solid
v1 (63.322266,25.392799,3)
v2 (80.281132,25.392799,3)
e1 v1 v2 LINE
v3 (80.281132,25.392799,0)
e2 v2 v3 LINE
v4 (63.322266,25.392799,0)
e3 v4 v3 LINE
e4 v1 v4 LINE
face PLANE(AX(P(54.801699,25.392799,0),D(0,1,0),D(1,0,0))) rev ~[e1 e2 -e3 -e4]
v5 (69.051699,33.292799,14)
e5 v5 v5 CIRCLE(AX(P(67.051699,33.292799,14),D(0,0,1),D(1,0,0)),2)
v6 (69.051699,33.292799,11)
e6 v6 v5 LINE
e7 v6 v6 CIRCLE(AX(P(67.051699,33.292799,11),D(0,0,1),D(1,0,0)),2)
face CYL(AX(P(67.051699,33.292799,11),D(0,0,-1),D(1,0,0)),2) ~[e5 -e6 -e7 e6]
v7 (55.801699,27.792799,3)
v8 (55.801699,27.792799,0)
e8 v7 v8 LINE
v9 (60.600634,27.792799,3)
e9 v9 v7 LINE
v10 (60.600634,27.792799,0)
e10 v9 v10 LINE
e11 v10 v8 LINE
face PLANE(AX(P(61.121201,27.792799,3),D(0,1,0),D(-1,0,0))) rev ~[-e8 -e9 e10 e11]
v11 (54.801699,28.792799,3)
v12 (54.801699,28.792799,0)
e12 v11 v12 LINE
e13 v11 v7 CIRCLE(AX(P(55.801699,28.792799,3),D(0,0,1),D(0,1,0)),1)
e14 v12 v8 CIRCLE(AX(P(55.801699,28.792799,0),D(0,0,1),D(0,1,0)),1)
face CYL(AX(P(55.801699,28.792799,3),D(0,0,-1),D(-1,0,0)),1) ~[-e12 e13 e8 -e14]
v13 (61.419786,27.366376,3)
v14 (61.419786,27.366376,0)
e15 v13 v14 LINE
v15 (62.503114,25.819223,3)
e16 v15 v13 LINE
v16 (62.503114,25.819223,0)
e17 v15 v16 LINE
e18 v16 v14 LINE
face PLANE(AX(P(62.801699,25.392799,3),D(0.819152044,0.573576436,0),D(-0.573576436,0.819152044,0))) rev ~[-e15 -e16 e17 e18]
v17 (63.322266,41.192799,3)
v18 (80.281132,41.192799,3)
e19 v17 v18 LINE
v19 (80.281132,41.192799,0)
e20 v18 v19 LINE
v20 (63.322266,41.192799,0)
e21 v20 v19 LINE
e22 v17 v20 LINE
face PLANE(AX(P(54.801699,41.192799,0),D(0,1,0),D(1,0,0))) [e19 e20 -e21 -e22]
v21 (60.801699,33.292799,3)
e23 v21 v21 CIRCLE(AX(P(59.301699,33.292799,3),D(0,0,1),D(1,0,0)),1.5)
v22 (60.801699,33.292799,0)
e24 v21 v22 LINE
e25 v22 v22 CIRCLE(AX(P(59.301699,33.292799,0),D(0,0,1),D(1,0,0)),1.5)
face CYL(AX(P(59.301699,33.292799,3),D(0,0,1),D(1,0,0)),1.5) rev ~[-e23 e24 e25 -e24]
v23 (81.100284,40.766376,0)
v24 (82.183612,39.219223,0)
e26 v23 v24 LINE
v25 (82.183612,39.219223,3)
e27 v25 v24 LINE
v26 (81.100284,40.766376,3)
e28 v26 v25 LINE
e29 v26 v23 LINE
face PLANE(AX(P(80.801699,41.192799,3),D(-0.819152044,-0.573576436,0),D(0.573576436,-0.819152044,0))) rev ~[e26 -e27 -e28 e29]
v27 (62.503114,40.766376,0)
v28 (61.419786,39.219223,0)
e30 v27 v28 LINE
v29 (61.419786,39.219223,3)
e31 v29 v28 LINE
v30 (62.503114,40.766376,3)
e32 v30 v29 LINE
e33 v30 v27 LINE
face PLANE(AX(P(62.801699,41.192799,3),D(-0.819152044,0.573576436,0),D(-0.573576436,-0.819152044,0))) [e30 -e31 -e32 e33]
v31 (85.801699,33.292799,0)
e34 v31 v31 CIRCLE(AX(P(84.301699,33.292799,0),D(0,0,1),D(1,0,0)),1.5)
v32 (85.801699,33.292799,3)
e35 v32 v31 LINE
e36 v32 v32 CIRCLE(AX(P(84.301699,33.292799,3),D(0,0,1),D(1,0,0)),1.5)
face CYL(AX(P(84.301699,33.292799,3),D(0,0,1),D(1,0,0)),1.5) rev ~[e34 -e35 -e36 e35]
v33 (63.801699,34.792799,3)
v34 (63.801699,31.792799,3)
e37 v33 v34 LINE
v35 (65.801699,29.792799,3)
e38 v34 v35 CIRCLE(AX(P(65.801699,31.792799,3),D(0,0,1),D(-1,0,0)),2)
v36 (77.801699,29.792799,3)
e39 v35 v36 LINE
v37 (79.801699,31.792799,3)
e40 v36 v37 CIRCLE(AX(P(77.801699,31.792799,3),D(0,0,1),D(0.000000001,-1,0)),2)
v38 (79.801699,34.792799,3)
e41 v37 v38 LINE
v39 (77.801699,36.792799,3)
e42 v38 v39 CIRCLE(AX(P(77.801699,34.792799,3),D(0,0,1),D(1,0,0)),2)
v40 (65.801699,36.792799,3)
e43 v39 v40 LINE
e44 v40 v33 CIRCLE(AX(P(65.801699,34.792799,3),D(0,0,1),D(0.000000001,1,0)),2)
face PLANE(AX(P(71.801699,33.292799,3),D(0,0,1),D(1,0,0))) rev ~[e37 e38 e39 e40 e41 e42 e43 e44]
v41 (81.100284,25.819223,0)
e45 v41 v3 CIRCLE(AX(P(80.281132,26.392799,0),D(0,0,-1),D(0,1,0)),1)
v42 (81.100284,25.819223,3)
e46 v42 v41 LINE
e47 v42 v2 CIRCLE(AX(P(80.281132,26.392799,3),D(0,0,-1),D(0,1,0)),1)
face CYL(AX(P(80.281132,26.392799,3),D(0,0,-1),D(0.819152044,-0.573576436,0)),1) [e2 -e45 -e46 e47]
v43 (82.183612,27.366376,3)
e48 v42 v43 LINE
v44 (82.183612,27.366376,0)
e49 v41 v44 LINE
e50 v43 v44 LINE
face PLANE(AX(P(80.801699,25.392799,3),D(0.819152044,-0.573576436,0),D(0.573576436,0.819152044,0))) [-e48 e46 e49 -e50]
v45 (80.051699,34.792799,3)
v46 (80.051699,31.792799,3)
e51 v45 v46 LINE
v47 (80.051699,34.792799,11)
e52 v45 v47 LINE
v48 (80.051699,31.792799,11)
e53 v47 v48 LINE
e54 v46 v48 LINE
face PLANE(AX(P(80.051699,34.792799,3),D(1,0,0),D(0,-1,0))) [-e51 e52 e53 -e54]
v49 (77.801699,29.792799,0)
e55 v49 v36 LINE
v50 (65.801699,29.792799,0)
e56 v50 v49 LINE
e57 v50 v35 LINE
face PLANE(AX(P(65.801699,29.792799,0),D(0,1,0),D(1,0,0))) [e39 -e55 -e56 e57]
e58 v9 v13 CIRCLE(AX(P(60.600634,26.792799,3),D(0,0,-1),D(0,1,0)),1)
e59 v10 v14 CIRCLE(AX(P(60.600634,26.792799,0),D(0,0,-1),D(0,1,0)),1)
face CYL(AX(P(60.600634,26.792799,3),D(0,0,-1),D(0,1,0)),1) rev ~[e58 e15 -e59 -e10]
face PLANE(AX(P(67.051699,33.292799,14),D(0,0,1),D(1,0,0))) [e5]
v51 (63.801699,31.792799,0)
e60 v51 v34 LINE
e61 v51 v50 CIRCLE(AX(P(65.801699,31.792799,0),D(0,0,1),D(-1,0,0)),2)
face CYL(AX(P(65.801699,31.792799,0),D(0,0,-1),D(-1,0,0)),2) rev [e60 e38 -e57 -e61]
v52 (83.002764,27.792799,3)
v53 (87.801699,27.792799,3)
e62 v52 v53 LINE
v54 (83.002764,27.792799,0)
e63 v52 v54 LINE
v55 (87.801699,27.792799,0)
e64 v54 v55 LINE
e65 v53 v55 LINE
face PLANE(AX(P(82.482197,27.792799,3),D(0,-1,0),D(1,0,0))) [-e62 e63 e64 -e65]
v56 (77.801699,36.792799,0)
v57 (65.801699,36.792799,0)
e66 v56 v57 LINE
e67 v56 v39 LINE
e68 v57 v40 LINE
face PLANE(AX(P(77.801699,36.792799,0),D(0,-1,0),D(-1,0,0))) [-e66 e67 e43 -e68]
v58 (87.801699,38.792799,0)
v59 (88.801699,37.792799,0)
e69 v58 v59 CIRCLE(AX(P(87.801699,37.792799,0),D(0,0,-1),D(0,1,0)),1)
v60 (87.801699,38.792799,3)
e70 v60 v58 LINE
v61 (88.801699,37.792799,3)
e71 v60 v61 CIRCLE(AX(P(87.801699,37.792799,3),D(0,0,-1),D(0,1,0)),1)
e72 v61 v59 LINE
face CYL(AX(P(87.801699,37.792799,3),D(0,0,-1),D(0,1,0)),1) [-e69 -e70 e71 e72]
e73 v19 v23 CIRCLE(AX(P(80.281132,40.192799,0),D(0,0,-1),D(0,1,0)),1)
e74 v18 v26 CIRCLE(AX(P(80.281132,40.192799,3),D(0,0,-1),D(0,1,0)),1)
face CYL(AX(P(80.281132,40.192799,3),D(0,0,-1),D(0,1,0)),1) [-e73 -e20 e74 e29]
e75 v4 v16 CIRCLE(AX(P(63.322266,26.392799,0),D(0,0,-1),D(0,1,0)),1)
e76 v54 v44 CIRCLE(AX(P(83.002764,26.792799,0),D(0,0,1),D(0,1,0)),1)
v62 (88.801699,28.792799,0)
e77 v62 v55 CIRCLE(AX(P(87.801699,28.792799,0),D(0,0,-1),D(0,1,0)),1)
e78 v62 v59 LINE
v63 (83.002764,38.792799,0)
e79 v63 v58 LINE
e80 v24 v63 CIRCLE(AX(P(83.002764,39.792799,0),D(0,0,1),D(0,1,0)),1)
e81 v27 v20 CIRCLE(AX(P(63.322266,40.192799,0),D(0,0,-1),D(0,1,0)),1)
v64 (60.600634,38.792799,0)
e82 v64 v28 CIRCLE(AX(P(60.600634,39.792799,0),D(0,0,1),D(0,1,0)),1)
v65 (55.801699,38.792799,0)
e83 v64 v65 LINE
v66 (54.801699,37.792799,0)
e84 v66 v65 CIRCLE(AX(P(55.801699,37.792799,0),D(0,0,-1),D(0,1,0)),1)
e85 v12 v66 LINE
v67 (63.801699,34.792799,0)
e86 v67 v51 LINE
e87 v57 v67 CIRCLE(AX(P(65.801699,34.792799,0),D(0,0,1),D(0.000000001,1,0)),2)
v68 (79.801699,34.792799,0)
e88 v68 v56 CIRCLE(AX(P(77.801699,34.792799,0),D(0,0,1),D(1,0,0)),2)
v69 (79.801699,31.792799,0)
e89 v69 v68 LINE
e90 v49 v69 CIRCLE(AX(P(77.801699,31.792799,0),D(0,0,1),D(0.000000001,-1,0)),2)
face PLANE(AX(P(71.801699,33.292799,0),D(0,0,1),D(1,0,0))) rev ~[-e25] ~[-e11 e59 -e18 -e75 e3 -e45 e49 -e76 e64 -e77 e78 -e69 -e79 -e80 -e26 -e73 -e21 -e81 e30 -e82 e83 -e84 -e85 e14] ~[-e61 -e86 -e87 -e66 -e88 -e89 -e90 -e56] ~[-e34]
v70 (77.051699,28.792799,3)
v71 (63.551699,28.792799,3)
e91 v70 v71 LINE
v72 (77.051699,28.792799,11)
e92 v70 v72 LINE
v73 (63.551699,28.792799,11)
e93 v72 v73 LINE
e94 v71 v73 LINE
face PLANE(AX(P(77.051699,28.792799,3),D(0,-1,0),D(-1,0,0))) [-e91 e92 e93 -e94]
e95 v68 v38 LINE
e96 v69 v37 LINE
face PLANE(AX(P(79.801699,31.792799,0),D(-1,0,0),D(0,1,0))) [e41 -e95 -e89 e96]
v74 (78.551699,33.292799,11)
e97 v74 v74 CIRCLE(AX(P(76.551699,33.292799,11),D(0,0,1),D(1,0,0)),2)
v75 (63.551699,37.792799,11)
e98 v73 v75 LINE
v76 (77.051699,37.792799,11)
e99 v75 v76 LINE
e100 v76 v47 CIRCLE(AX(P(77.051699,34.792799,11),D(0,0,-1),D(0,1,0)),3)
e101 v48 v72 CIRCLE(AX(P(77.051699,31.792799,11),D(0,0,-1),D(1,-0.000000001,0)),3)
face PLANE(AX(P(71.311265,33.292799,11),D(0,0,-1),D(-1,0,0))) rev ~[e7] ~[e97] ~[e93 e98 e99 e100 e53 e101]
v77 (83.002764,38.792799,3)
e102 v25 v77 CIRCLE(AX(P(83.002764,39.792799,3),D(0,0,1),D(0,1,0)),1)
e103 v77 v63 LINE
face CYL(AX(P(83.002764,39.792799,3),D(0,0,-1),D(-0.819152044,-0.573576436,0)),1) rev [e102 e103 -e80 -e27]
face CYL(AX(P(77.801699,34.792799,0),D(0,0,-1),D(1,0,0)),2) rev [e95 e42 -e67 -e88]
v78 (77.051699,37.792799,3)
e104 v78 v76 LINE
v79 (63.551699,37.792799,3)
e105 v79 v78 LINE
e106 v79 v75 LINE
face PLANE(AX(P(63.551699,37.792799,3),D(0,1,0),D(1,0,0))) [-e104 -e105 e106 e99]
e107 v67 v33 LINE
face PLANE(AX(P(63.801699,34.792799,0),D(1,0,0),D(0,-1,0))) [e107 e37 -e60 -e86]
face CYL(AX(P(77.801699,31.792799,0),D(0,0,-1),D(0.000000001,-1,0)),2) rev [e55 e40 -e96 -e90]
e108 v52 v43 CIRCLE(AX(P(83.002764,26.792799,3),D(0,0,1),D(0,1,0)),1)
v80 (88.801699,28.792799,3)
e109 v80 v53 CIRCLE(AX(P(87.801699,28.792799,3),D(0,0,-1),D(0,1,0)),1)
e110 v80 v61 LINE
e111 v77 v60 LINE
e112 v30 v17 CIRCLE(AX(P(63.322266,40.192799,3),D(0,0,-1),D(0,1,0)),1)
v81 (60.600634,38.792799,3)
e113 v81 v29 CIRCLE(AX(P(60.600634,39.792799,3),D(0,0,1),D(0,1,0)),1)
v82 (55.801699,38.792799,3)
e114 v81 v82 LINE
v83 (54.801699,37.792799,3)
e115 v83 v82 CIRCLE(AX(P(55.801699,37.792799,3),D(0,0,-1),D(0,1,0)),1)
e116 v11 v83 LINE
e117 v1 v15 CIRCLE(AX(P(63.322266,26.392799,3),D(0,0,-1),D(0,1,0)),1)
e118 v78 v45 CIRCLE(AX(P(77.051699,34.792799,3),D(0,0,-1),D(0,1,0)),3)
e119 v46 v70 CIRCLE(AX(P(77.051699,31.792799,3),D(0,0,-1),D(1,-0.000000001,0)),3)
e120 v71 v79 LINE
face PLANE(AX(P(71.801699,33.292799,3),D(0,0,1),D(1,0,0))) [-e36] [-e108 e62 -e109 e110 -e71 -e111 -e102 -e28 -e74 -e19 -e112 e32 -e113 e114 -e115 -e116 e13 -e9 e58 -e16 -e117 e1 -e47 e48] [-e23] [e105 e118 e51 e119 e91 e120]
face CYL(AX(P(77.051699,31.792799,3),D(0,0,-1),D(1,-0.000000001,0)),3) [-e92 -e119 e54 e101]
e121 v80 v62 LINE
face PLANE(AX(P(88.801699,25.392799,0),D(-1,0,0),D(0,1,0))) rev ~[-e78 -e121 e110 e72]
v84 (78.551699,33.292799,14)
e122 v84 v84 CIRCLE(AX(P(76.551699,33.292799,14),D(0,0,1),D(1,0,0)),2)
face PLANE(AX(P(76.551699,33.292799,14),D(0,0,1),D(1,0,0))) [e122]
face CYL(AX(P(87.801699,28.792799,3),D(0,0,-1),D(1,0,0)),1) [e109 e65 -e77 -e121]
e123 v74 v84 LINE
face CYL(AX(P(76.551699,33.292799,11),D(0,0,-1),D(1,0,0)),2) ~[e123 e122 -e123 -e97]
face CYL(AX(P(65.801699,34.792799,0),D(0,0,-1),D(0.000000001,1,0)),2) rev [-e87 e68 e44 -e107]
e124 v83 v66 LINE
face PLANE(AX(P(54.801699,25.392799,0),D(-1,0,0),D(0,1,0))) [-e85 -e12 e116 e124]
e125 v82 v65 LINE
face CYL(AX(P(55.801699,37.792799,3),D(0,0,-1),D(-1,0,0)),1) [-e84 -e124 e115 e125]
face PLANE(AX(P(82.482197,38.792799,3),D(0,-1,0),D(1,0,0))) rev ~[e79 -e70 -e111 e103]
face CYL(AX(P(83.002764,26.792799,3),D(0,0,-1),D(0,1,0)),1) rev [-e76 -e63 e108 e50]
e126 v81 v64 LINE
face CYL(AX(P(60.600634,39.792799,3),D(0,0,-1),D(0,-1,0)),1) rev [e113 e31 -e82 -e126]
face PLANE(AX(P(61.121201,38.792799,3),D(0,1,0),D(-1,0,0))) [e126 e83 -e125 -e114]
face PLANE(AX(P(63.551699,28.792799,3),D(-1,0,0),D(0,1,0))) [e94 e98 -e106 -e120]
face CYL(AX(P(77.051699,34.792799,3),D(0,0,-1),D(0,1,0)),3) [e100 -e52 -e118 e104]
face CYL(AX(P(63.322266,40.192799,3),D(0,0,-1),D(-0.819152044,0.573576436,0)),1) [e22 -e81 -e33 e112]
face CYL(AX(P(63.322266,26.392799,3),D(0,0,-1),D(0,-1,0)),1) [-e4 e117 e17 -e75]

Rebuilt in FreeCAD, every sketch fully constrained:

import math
import FreeCAD as App
import Part
import Sketcher
Q = App.Units.Quantity


def edges_at(feature, points):
    """Names of the edges that pass closest to the given points."""
    edges = feature.Shape.Edges
    near = lambda p: min(range(len(edges)), key=lambda i: edges[i].distToShape(Part.Vertex(*p))[0])
    return sorted({f"Edge{near(p) + 1}" for p in points})


def add_polygon(sketch, points):
    """Adds a closed chain of lines whose ends are joined by coincident constraints."""
    first, n = sketch.GeometryCount, len(points)
    for a, b in zip(points, points[1:] + points[:1]):
        sketch.addGeometry(Part.LineSegment(App.Vector(*a, 0), App.Vector(*b, 0)), False)
    for i in range(n):
        sketch.addConstraint(Sketcher.Constraint("Coincident", first + i, 2, first + (i + 1) % n, 1))

doc = App.newDocument("Part")
body = doc.addObject("PartDesign::Body", "Body")

# Sketch on XY plane
sketch1 = body.newObject("Sketcher::SketchObject", "Sketch")
sketch1.AttachmentSupport = (doc.getObject("XY_Plane"), [""])
sketch1.MapMode = "FlatFace"
add_polygon(sketch1, [(55, 41), (55, 25), (89, 25), (89, 41)])  # lines 0-3
sketch1.addConstraint(Sketcher.Constraint("Vertical", 0))
sketch1.addConstraint(Sketcher.Constraint("Horizontal", 1))
sketch1.addConstraint(Sketcher.Constraint("Vertical", 2))
sketch1.addConstraint(Sketcher.Constraint("Horizontal", 3))
sketch1.addConstraint(Sketcher.Constraint("DistanceX", 1, 1, 1, 2, 34.0))
sketch1.addConstraint(Sketcher.Constraint("DistanceY", 0, 2, 0, 1, 15.8))
sketch1.addConstraint(Sketcher.Constraint("DistanceX", -1, 1, 0, 2, 54.801699))
sketch1.addConstraint(Sketcher.Constraint("DistanceY", -1, 1, 0, 2, 25.392799))
pad1 = body.newObject("PartDesign::Pad", "Pad")
pad1.Profile = sketch1
pad1.Length = 3

# Sketch on XY plane
sketch2 = body.newObject("Sketcher::SketchObject", "Sketch001")
sketch2.AttachmentSupport = (doc.getObject("XY_Plane"), [""])
sketch2.MapMode = "FlatFace"
sketch2.AttachmentOffset = App.Placement(App.Vector(0, 0, 3), App.Rotation())
sketch2.addGeometry(Part.LineSegment(App.Vector(77.1, 37.8, 0), App.Vector(63.6, 37.8, 0)), False)
sketch2.addGeometry(Part.LineSegment(App.Vector(63.6, 37.8, 0), App.Vector(63.6, 28.8, 0)), False)
sketch2.addGeometry(Part.LineSegment(App.Vector(63.6, 28.8, 0), App.Vector(77.1, 28.8, 0)), False)
sketch2.addGeometry(Part.ArcOfCircle(Part.Circle(App.Vector(77.1, 31.8, 0), App.Vector(0, 0, 1), 3), math.radians(-90), math.radians(0)), False)
sketch2.addGeometry(Part.LineSegment(App.Vector(80.1, 31.8, 0), App.Vector(80.1, 34.8, 0)), False)
sketch2.addGeometry(Part.ArcOfCircle(Part.Circle(App.Vector(77.1, 34.8, 0), App.Vector(0, 0, 1), 3), math.radians(0), math.radians(90)), False)
sketch2.addConstraint(Sketcher.Constraint("Coincident", 0, 2, 1, 1))
sketch2.addConstraint(Sketcher.Constraint("Coincident", 1, 2, 2, 1))
sketch2.addConstraint(Sketcher.Constraint("Tangent", 2, 2, 3, 1))
sketch2.addConstraint(Sketcher.Constraint("Tangent", 3, 2, 4, 1))
sketch2.addConstraint(Sketcher.Constraint("Tangent", 4, 2, 5, 1))
sketch2.addConstraint(Sketcher.Constraint("Tangent", 5, 2, 0, 1))
sketch2.addConstraint(Sketcher.Constraint("Horizontal", 0))
sketch2.addConstraint(Sketcher.Constraint("Vertical", 1))
sketch2.addConstraint(Sketcher.Constraint("Horizontal", 2))
sketch2.addConstraint(Sketcher.Constraint("Vertical", 4))
sketch2.addConstraint(Sketcher.Constraint("Equal", 3, 5))
sketch2.addConstraint(Sketcher.Constraint("Radius", 3, 3.0))
sketch2.addConstraint(Sketcher.Constraint("DistanceY", 1, 2, 1, 1, 9.0))
sketch2.addConstraint(Sketcher.Constraint("DistanceX", 0, 2, 0, 1, 13.5))
sketch2.addConstraint(Sketcher.Constraint("DistanceX", -1, 1, 3, 3, 77.051699))
sketch2.addConstraint(Sketcher.Constraint("DistanceY", -1, 1, 3, 3, 31.792799))
pad2 = body.newObject("PartDesign::Pad", "Pad001")
pad2.Profile = sketch2
pad2.Length = 8

# Sketch on XY plane
sketch3 = body.newObject("Sketcher::SketchObject", "Sketch002")
sketch3.AttachmentSupport = (doc.getObject("XY_Plane"), [""])
sketch3.MapMode = "FlatFace"
sketch3.AttachmentOffset = App.Placement(App.Vector(0, 0, 3), App.Rotation())
add_polygon(sketch3, [(62.8, 41.2), (54.8, 41.2), (54.8, 38.8), (61.1, 38.8)])  # lines 0-3
add_polygon(sketch3, [(62.8, 25.4), (61.1, 27.8), (54.8, 27.8), (54.8, 25.4)])  # lines 4-7
add_polygon(sketch3, [(80.8, 25.4), (88.8, 25.4), (88.8, 27.8), (82.5, 27.8)])  # lines 8-11
add_polygon(sketch3, [(80.8, 41.2), (82.5, 38.8), (88.8, 38.8), (88.8, 41.2)])  # lines 12-15
sketch3.addConstraint(Sketcher.Constraint("Horizontal", 0))
sketch3.addConstraint(Sketcher.Constraint("Vertical", 1))
sketch3.addConstraint(Sketcher.Constraint("Horizontal", 2))
sketch3.addConstraint(Sketcher.Constraint("Horizontal", 5))
sketch3.addConstraint(Sketcher.Constraint("Vertical", 6))
sketch3.addConstraint(Sketcher.Constraint("Horizontal", 7))
sketch3.addConstraint(Sketcher.Constraint("Horizontal", 8))
sketch3.addConstraint(Sketcher.Constraint("Vertical", 9))
sketch3.addConstraint(Sketcher.Constraint("Horizontal", 10))
sketch3.addConstraint(Sketcher.Constraint("Horizontal", 13))
sketch3.addConstraint(Sketcher.Constraint("Vertical", 14))
sketch3.addConstraint(Sketcher.Constraint("Horizontal", 15))
sketch3.addConstraint(Sketcher.Constraint("Parallel", 3, 11))
sketch3.addConstraint(Sketcher.Constraint("Parallel", 4, 12))
sketch3.addConstraint(Sketcher.Constraint("Horizontal", 7, 2, 8, 2))
sketch3.addConstraint(Sketcher.Constraint("Horizontal", 5, 2, 9, 2))
sketch3.addConstraint(Sketcher.Constraint("Horizontal", 2, 2, 12, 2))
sketch3.addConstraint(Sketcher.Constraint("Horizontal", 3, 2, 14, 2))
sketch3.addConstraint(Sketcher.Constraint("Vertical", 2, 2, 4, 2))
sketch3.addConstraint(Sketcher.Constraint("Vertical", 1, 2, 5, 2))
sketch3.addConstraint(Sketcher.Constraint("Vertical", 3, 2, 7, 2))
sketch3.addConstraint(Sketcher.Constraint("Vertical", 10, 2, 12, 2))
sketch3.addConstraint(Sketcher.Constraint("Vertical", 9, 2, 13, 2))
sketch3.addConstraint(Sketcher.Constraint("Vertical", 11, 2, 15, 2))
sketch3.addConstraint(Sketcher.Constraint("Equal", 7, 8))
sketch3.addConstraint(Sketcher.Constraint("DistanceX", 0, 2, 0, 1, 8.0))
sketch3.addConstraint(Sketcher.Constraint("Angle", 3, Q("55 deg")))
sketch3.addConstraint(Sketcher.Constraint("DistanceY", 1, 2, 1, 1, 2.4))
sketch3.addConstraint(Sketcher.Constraint("DistanceY", 4, 2, 2, 2, 11.0))
sketch3.addConstraint(Sketcher.Constraint("DistanceX", 7, 2, 8, 2, 26.0))
sketch3.addConstraint(Sketcher.Constraint("DistanceX", -1, 1, 0, 2, 54.801699))
sketch3.addConstraint(Sketcher.Constraint("DistanceY", -1, 1, 0, 2, 41.192799))
pocket1 = body.newObject("PartDesign::Pocket", "Pocket")
pocket1.Profile = sketch3
pocket1.Type = "ThroughAll"

# Sketch on XY plane
sketch4 = body.newObject("Sketcher::SketchObject", "Sketch003")
sketch4.AttachmentSupport = (doc.getObject("XY_Plane"), [""])
sketch4.MapMode = "FlatFace"
sketch4.AttachmentOffset = App.Placement(App.Vector(0, 0, 11), App.Rotation())
sketch4.addGeometry(Part.Circle(App.Vector(67.1, 33.3, 0), App.Vector(0, 0, 1), 2), False)
sketch4.addGeometry(Part.Circle(App.Vector(76.6, 33.3, 0), App.Vector(0, 0, 1), 2), False)
sketch4.addConstraint(Sketcher.Constraint("Equal", 0, 1))
sketch4.addConstraint(Sketcher.Constraint("Horizontal", 0, 3, 1, 3))
sketch4.addConstraint(Sketcher.Constraint("Diameter", 0, 4.0))
sketch4.addConstraint(Sketcher.Constraint("DistanceX", 0, 3, 1, 3, 9.5))
sketch4.addConstraint(Sketcher.Constraint("DistanceX", -1, 1, 0, 3, 67.051699))
sketch4.addConstraint(Sketcher.Constraint("DistanceY", -1, 1, 0, 3, 33.292799))
pad3 = body.newObject("PartDesign::Pad", "Pad002")
pad3.Profile = sketch4
pad3.Length = 3
doc.recompute()

fillet = body.newObject("PartDesign::Fillet", "Fillet")
fillet.Base = (pad3, edges_at(pad3, [
    (80.802, 41.193, 1.5),
    (88.802, 38.793, 1.5),
    (82.482, 38.793, 1.5),
    (88.802, 27.793, 1.5),
    (80.802, 25.393, 1.5),
    (82.482, 27.793, 1.5),
    (62.802, 25.393, 1.5),
    (54.802, 27.793, 1.5),
    (61.121, 27.793, 1.5),
    (54.802, 38.793, 1.5),
    (62.802, 41.193, 1.5),
    (61.121, 38.793, 1.5),
]))
fillet.Radius = 1

# Sketch on XY plane
sketch5 = body.newObject("Sketcher::SketchObject", "Sketch004")
sketch5.AttachmentSupport = (doc.getObject("XY_Plane"), [""])
sketch5.MapMode = "FlatFace"
sketch5.AttachmentOffset = App.Placement(App.Vector(0, 0, 3), App.Rotation())
sketch5.addGeometry(Part.Circle(App.Vector(59.3, 33.3, 0), App.Vector(0, 0, 1), 1.5), False)
sketch5.addGeometry(Part.Circle(App.Vector(84.3, 33.3, 0), App.Vector(0, 0, 1), 1.5), False)
sketch5.addConstraint(Sketcher.Constraint("Equal", 0, 1))
sketch5.addConstraint(Sketcher.Constraint("Horizontal", 0, 3, 1, 3))
sketch5.addConstraint(Sketcher.Constraint("Diameter", 0, 3.0))
sketch5.addConstraint(Sketcher.Constraint("DistanceX", 0, 3, 1, 3, 25.0))
sketch5.addConstraint(Sketcher.Constraint("DistanceX", -1, 1, 0, 3, 59.301699))
sketch5.addConstraint(Sketcher.Constraint("DistanceY", -1, 1, 0, 3, 33.292799))
pocket2 = body.newObject("PartDesign::Pocket", "Pocket001")
pocket2.Profile = sketch5
pocket2.Type = "ThroughAll"

# Sketch on XY plane
sketch6 = body.newObject("Sketcher::SketchObject", "Sketch005")
sketch6.AttachmentSupport = (doc.getObject("XY_Plane"), [""])
sketch6.MapMode = "FlatFace"
sketch6.addGeometry(Part.LineSegment(App.Vector(65.8, 36.8, 0), App.Vector(77.8, 36.8, 0)), False)
sketch6.addGeometry(Part.ArcOfCircle(Part.Circle(App.Vector(77.8, 34.8, 0), App.Vector(0, 0, 1), 2), math.radians(0), math.radians(90)), False)
sketch6.addGeometry(Part.LineSegment(App.Vector(79.8, 34.8, 0), App.Vector(79.8, 31.8, 0)), False)
sketch6.addGeometry(Part.ArcOfCircle(Part.Circle(App.Vector(77.8, 31.8, 0), App.Vector(0, 0, 1), 2), math.radians(-90), math.radians(0)), False)
sketch6.addGeometry(Part.LineSegment(App.Vector(77.8, 29.8, 0), App.Vector(65.8, 29.8, 0)), False)
sketch6.addGeometry(Part.ArcOfCircle(Part.Circle(App.Vector(65.8, 31.8, 0), App.Vector(0, 0, 1), 2), math.radians(180), math.radians(270)), False)
sketch6.addGeometry(Part.LineSegment(App.Vector(63.8, 31.8, 0), App.Vector(63.8, 34.8, 0)), False)
sketch6.addGeometry(Part.ArcOfCircle(Part.Circle(App.Vector(65.8, 34.8, 0), App.Vector(0, 0, 1), 2), math.radians(90), math.radians(180)), False)
sketch6.addConstraint(Sketcher.Constraint("Tangent", 0, 2, 1, 2))
sketch6.addConstraint(Sketcher.Constraint("Tangent", 1, 1, 2, 1))
sketch6.addConstraint(Sketcher.Constraint("Tangent", 2, 2, 3, 2))
sketch6.addConstraint(Sketcher.Constraint("Tangent", 3, 1, 4, 1))
sketch6.addConstraint(Sketcher.Constraint("Tangent", 4, 2, 5, 2))
sketch6.addConstraint(Sketcher.Constraint("Tangent", 5, 1, 6, 1))
sketch6.addConstraint(Sketcher.Constraint("Tangent", 6, 2, 7, 2))
sketch6.addConstraint(Sketcher.Constraint("Tangent", 7, 1, 0, 1))
sketch6.addConstraint(Sketcher.Constraint("Horizontal", 0))
sketch6.addConstraint(Sketcher.Constraint("Vertical", 2))
sketch6.addConstraint(Sketcher.Constraint("Horizontal", 4))
sketch6.addConstraint(Sketcher.Constraint("Vertical", 6))
sketch6.addConstraint(Sketcher.Constraint("Equal", 1, 3))
sketch6.addConstraint(Sketcher.Constraint("Equal", 3, 5))
sketch6.addConstraint(Sketcher.Constraint("Equal", 5, 7))
sketch6.addConstraint(Sketcher.Constraint("Radius", 1, 2.0))
sketch6.addConstraint(Sketcher.Constraint("DistanceX", 0, 1, 0, 2, 12.0))
sketch6.addConstraint(Sketcher.Constraint("DistanceY", 2, 2, 2, 1, 3.0))
sketch6.addConstraint(Sketcher.Constraint("DistanceX", -1, 1, 1, 3, 77.801699))
sketch6.addConstraint(Sketcher.Constraint("DistanceY", -1, 1, 1, 3, 34.792799))
pocket3 = body.newObject("PartDesign::Pocket", "Pocket002")
pocket3.Profile = sketch6
pocket3.Length = 3
pocket3.Reversed = True

doc.recompute()
